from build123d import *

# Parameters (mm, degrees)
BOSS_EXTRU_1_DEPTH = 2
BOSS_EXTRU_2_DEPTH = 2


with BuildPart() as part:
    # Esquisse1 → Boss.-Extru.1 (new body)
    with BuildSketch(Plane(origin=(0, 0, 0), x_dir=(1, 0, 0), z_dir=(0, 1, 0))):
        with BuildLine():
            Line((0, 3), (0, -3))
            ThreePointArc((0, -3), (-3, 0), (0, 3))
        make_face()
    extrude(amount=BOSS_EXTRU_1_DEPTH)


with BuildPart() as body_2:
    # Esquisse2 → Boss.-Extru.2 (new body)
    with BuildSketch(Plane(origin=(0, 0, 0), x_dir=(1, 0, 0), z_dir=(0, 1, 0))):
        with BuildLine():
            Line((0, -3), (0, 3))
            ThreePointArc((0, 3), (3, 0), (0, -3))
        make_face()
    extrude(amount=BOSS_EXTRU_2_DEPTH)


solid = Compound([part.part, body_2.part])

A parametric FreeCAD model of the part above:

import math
import FreeCAD as App
import Part
import Sketcher
from FreeCAD import Vector

doc = App.newDocument("Part")
body = doc.addObject("PartDesign::Body", "Body")

sketch1 = doc.addObject("Sketcher::SketchObject", "Sketch")
body.addObject(sketch1)
sketch1.AttachmentSupport = (doc.XZ_Plane, [""])
sketch1.MapMode = "FlatFace"
sketch1.addGeometry([
    Part.LineSegment(Vector(0, 3, 0), Vector(0, -3, 0)),
    Part.ArcOfCircle(Part.Circle(Vector(0, 0, 0), Vector(0, 0, 1), 3), math.radians(90), math.radians(270)),
], False)
sketch1.addConstraint([
    Sketcher.Constraint("Coincident", 0, 1, 1, 1),
    Sketcher.Constraint("Coincident", 1, 2, 0, 2),
    Sketcher.Constraint("Vertical", 0),
    Sketcher.Constraint("Coincident", 1, 3, -1, 1),
    Sketcher.Constraint("PointOnObject", 0, 1, -2),
    Sketcher.Constraint("Radius", 1, 3.0),
])
pad1 = doc.addObject("PartDesign::Pad", "Pad")
body.addObject(pad1)
pad1.Profile = sketch1
pad1.Length = 2
pad1.Reversed = True
body2 = doc.addObject("PartDesign::Body", "Body001")

sketch2 = doc.addObject("Sketcher::SketchObject", "Sketch001")
body2.addObject(sketch2)
sketch2.AttachmentSupport = (doc.getObject("XZ_Plane001"), [""])
sketch2.MapMode = "FlatFace"
sketch2.addGeometry([
    Part.LineSegment(Vector(0, -3, 0), Vector(0, 3, 0)),
    Part.ArcOfCircle(Part.Circle(Vector(0, 0, 0), Vector(0, 0, 1), 3), math.radians(-90), math.radians(90)),
], False)
sketch2.addConstraint([
    Sketcher.Constraint("Coincident", 0, 1, 1, 1),
    Sketcher.Constraint("Coincident", 1, 2, 0, 2),
    Sketcher.Constraint("Vertical", 0),
    Sketcher.Constraint("Coincident", 1, 3, -1, 1),
    Sketcher.Constraint("PointOnObject", 0, 1, -2),
    Sketcher.Constraint("Radius", 1, 3.0),
])
pad2 = doc.addObject("PartDesign::Pad", "Pad001")
body2.addObject(pad2)
pad2.Profile = sketch2
pad2.Length = 2
pad2.Reversed = True

doc.recompute()
